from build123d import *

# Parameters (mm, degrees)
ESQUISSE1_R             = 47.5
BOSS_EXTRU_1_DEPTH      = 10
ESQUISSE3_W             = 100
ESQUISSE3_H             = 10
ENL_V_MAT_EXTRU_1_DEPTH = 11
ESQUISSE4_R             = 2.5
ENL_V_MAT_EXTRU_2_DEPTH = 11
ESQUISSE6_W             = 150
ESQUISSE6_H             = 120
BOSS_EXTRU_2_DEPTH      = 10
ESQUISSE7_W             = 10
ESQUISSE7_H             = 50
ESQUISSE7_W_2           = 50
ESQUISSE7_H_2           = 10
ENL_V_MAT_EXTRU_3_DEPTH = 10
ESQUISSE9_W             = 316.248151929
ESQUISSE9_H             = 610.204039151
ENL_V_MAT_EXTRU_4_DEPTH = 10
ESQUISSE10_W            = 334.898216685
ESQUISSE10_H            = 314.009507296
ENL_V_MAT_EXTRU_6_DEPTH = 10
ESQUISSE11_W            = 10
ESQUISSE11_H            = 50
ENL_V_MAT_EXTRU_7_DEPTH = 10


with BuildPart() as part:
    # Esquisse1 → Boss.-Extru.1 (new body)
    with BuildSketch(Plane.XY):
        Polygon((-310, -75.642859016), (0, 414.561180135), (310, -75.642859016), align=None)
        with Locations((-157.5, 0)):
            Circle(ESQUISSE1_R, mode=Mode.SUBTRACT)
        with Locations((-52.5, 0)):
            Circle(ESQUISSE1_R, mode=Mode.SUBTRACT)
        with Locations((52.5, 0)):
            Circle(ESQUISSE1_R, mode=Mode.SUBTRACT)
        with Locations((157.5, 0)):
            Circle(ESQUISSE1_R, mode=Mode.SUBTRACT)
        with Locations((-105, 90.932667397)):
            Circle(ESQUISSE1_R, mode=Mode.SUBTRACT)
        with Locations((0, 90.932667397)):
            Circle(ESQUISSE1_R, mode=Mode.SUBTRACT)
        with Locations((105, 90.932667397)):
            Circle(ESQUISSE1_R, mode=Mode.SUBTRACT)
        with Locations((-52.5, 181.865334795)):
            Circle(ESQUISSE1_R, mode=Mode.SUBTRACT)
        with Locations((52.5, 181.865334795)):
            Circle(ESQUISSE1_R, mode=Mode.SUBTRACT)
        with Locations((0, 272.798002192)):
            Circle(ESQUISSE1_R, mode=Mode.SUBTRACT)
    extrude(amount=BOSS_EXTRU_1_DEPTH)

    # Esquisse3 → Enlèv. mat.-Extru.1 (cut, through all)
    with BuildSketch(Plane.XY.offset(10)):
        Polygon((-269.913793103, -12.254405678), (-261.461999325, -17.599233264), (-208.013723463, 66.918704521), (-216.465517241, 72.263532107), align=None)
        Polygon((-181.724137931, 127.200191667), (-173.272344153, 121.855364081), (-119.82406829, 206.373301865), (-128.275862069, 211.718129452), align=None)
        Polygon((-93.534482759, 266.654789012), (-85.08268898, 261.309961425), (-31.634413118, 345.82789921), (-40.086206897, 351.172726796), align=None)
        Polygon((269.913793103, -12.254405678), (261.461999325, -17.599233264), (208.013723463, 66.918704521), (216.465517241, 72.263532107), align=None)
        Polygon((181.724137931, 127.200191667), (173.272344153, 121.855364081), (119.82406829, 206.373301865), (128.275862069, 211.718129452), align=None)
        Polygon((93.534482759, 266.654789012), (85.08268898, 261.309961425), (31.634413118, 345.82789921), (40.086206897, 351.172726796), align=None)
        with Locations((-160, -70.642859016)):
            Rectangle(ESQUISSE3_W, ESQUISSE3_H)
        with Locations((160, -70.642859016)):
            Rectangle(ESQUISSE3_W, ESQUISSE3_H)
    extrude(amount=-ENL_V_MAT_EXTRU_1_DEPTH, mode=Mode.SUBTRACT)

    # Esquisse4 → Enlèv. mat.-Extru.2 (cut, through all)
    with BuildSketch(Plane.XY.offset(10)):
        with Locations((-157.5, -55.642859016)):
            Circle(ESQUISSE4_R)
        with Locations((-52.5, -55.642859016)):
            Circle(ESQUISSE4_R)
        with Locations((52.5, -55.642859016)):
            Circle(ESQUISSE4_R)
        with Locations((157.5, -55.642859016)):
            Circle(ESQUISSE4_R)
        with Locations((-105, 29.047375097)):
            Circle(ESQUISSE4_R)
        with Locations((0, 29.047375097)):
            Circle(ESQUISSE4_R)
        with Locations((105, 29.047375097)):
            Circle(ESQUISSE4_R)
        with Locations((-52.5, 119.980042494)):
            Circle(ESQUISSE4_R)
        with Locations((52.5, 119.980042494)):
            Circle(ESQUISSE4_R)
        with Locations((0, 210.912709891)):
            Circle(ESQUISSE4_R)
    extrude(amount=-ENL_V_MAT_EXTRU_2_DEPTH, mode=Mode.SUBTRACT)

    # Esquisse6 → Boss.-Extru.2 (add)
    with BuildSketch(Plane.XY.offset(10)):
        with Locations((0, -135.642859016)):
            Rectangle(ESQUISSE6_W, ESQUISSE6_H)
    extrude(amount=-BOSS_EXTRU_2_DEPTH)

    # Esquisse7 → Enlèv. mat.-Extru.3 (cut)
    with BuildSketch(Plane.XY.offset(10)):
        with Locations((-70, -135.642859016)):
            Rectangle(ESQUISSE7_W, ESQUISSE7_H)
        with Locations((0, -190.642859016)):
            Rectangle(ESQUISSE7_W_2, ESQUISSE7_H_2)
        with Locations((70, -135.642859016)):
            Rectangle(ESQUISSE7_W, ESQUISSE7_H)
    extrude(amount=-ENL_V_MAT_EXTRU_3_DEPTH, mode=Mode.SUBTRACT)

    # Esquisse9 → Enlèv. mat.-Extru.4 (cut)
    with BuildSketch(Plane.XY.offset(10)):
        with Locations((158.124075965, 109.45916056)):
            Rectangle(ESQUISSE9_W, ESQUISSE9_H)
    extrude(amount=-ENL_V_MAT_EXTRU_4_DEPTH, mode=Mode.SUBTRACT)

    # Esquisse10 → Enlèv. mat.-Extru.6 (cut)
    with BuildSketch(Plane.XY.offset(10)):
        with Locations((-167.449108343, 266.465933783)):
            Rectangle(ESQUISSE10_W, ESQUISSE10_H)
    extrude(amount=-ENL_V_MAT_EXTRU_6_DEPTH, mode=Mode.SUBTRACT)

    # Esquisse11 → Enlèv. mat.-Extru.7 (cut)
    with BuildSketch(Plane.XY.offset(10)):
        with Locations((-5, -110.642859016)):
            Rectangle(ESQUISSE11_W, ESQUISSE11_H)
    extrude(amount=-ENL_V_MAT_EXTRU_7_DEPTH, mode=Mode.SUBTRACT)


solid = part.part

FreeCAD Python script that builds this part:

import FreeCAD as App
import Part
import Sketcher

V = App.Vector

doc = App.newDocument("Part")
body = doc.addObject("PartDesign::Body", "Body")

# Sketch on XY plane
sketch1 = body.newObject("Sketcher::SketchObject", "Sketch")
sketch1.AttachmentSupport = (doc.getObject("XY_Plane"), [""])
sketch1.MapMode = "FlatFace"
sketch1.addGeometry([
    Part.LineSegment(V(0, 415, 0), V(-310, -76, 0)),  # 0
    Part.LineSegment(V(-310, -76, 0), V(310, -76, 0)),  # 1
    Part.LineSegment(V(310, -76, 0), V(0, 415, 0)),  # 2
    Part.Circle(V(158, 0, 0), V(0, 0, 1), 48),  # 3
    Part.Circle(V(52, 0, 0), V(0, 0, 1), 48),  # 4
    Part.Circle(V(105, 91, 0), V(0, 0, 1), 48),  # 5
    Part.Circle(V(-52, 0, 0), V(0, 0, 1), 48),  # 6
    Part.Circle(V(-158, 0, 0), V(0, 0, 1), 48),  # 7
    Part.Circle(V(0, 91, 0), V(0, 0, 1), 48),  # 8
    Part.Circle(V(-105, 91, 0), V(0, 0, 1), 48),  # 9
    Part.Circle(V(52, 182, 0), V(0, 0, 1), 48),  # 10
    Part.Circle(V(-52, 182, 0), V(0, 0, 1), 48),  # 11
    Part.Circle(V(0, 273, 0), V(0, 0, 1), 48),  # 12
], False)
sketch1.addConstraint([
    Sketcher.Constraint("Coincident", 0, 2, 1, 1),
    Sketcher.Constraint("Coincident", 1, 2, 2, 1),
    Sketcher.Constraint("Coincident", 2, 2, 0, 1),
    Sketcher.Constraint("Horizontal", 1),
    Sketcher.Constraint("Equal", 3, 4),
    Sketcher.Constraint("Equal", 4, 5),
    Sketcher.Constraint("Equal", 5, 6),
    Sketcher.Constraint("Equal", 6, 7),
    Sketcher.Constraint("Equal", 7, 8),
    Sketcher.Constraint("Equal", 8, 9),
    Sketcher.Constraint("Equal", 9, 10),
    Sketcher.Constraint("Equal", 10, 11),
    Sketcher.Constraint("Equal", 11, 12),
    Sketcher.Constraint("Symmetric", 4, 3, 6, 3, -1, 1),
    Sketcher.Constraint("Symmetric", 3, 3, 7, 3, -1, 1),
    Sketcher.Constraint("Symmetric", 5, 3, 9, 3, -2),
    Sketcher.Constraint("Symmetric", 10, 3, 11, 3, -2),
    Sketcher.Constraint("PointOnObject", 3, 3, -1),
    Sketcher.Constraint("PointOnObject", 4, 3, -1),
    Sketcher.Constraint("PointOnObject", 8, 3, -2),
    Sketcher.Constraint("PointOnObject", 12, 3, -2),
    Sketcher.Constraint("PointOnObject", 2, 2, -2),
    Sketcher.Constraint("Horizontal", 5, 3, 8, 3),
    Sketcher.Constraint("Vertical", 4, 3, 10, 3),
    Sketcher.Constraint("Equal", 0, 2),
    Sketcher.Constraint("Diameter", 3, 95.0),
    Sketcher.Constraint("DistanceX", 1, 1, 1, 2, 620.0),
    Sketcher.Constraint("Distance", 0, 580.0),
    Sketcher.Constraint("DistanceX", -1, 1, 5, 3, 105.0),
    Sketcher.Constraint("DistanceX", 4, 3, 3, 3, 105.0),
    Sketcher.Constraint("DistanceX", 6, 3, 4, 3, 105.0),
    Sketcher.Constraint("DistanceY", 0, 2, -1, 1, 75.642859),
    Sketcher.Constraint("DistanceY", -1, 1, 5, 3, 90.932667),
    Sketcher.Constraint("DistanceY", -1, 1, 10, 3, 181.865335),
    Sketcher.Constraint("DistanceY", -1, 1, 12, 3, 272.798002),
])
pad1 = body.newObject("PartDesign::Pad", "Pad")
pad1.Profile = sketch1
pad1.Length = 10

# Sketch on XY plane
sketch2 = body.newObject("Sketcher::SketchObject", "Sketch001")
sketch2.AttachmentSupport = (doc.getObject("XY_Plane"), [""])
sketch2.MapMode = "FlatFace"
sketch2.AttachmentOffset = App.Placement(V(0, 0, 10), App.Rotation())
sketch2.addGeometry([
    Part.LineSegment(V(-270, -12, 0), V(-261, -18, 0)),  # 0
    Part.LineSegment(V(-261, -18, 0), V(-208, 67, 0)),  # 1
    Part.LineSegment(V(-208, 67, 0), V(-216, 72, 0)),  # 2
    Part.LineSegment(V(-216, 72, 0), V(-270, -12, 0)),  # 3
    Part.LineSegment(V(-182, 127, 0), V(-173, 122, 0)),  # 4
    Part.LineSegment(V(-173, 122, 0), V(-120, 206, 0)),  # 5
    Part.LineSegment(V(-120, 206, 0), V(-128, 212, 0)),  # 6
    Part.LineSegment(V(-128, 212, 0), V(-182, 127, 0)),  # 7
    Part.LineSegment(V(-94, 267, 0), V(-85, 261, 0)),  # 8
    Part.LineSegment(V(-85, 261, 0), V(-32, 346, 0)),  # 9
    Part.LineSegment(V(-32, 346, 0), V(-40, 351, 0)),  # 10
    Part.LineSegment(V(-40, 351, 0), V(-94, 267, 0)),  # 11
    Part.LineSegment(V(261, -18, 0), V(270, -12, 0)),  # 12
    Part.LineSegment(V(270, -12, 0), V(216, 72, 0)),  # 13
    Part.LineSegment(V(216, 72, 0), V(208, 67, 0)),  # 14
    Part.LineSegment(V(208, 67, 0), V(261, -18, 0)),  # 15
    Part.LineSegment(V(173, 122, 0), V(182, 127, 0)),  # 16
    Part.LineSegment(V(182, 127, 0), V(128, 212, 0)),  # 17
    Part.LineSegment(V(128, 212, 0), V(120, 206, 0)),  # 18
    Part.LineSegment(V(120, 206, 0), V(173, 122, 0)),  # 19
    Part.LineSegment(V(85, 261, 0), V(94, 267, 0)),  # 20
    Part.LineSegment(V(94, 267, 0), V(40, 351, 0)),  # 21
    Part.LineSegment(V(40, 351, 0), V(32, 346, 0)),  # 22
    Part.LineSegment(V(32, 346, 0), V(85, 261, 0)),  # 23
    Part.LineSegment(V(-210, -66, 0), V(-210, -76, 0)),  # 24
    Part.LineSegment(V(-210, -76, 0), V(-110, -76, 0)),  # 25
    Part.LineSegment(V(-110, -76, 0), V(-110, -66, 0)),  # 26
    Part.LineSegment(V(-110, -66, 0), V(-210, -66, 0)),  # 27
    Part.LineSegment(V(110, -66, 0), V(110, -76, 0)),  # 28
    Part.LineSegment(V(110, -76, 0), V(210, -76, 0)),  # 29
    Part.LineSegment(V(210, -76, 0), V(210, -66, 0)),  # 30
    Part.LineSegment(V(210, -66, 0), V(110, -66, 0)),  # 31
], False)
sketch2.addConstraint([
    Sketcher.Constraint("Coincident", 0, 2, 1, 1),
    Sketcher.Constraint("Coincident", 1, 2, 2, 1),
    Sketcher.Constraint("Coincident", 2, 2, 3, 1),
    Sketcher.Constraint("Coincident", 3, 2, 0, 1),
    Sketcher.Constraint("Coincident", 4, 2, 5, 1),
    Sketcher.Constraint("Coincident", 5, 2, 6, 1),
    Sketcher.Constraint("Coincident", 6, 2, 7, 1),
    Sketcher.Constraint("Coincident", 7, 2, 4, 1),
    Sketcher.Constraint("Coincident", 8, 2, 9, 1),
    Sketcher.Constraint("Coincident", 9, 2, 10, 1),
    Sketcher.Constraint("Coincident", 10, 2, 11, 1),
    Sketcher.Constraint("Coincident", 11, 2, 8, 1),
    Sketcher.Constraint("Coincident", 12, 2, 13, 1),
    Sketcher.Constraint("Coincident", 13, 2, 14, 1),
    Sketcher.Constraint("Coincident", 14, 2, 15, 1),
    Sketcher.Constraint("Coincident", 15, 2, 12, 1),
    Sketcher.Constraint("Coincident", 16, 2, 17, 1),
    Sketcher.Constraint("Coincident", 17, 2, 18, 1),
    Sketcher.Constraint("Coincident", 18, 2, 19, 1),
    Sketcher.Constraint("Coincident", 19, 2, 16, 1),
    Sketcher.Constraint("Coincident", 20, 2, 21, 1),
    Sketcher.Constraint("Coincident", 21, 2, 22, 1),
    Sketcher.Constraint("Coincident", 22, 2, 23, 1),
    Sketcher.Constraint("Coincident", 23, 2, 20, 1),
    Sketcher.Constraint("Coincident", 24, 2, 25, 1),
    Sketcher.Constraint("Coincident", 25, 2, 26, 1),
    Sketcher.Constraint("Coincident", 26, 2, 27, 1),
    Sketcher.Constraint("Coincident", 27, 2, 24, 1),
    Sketcher.Constraint("Coincident", 28, 2, 29, 1),
    Sketcher.Constraint("Coincident", 29, 2, 30, 1),
    Sketcher.Constraint("Coincident", 30, 2, 31, 1),
    Sketcher.Constraint("Coincident", 31, 2, 28, 1),
    Sketcher.Constraint("Vertical", 24),
    Sketcher.Constraint("Horizontal", 25),
    Sketcher.Constraint("Vertical", 26),
    Sketcher.Constraint("Horizontal", 27),
    Sketcher.Constraint("Vertical", 28),
    Sketcher.Constraint("Horizontal", 29),
    Sketcher.Constraint("Vertical", 30),
    Sketcher.Constraint("Horizontal", 31),
    Sketcher.Constraint("Symmetric", 3, 2, 12, 2, -2),
    Sketcher.Constraint("Symmetric", 2, 2, 13, 2, -2),
    Sketcher.Constraint("Symmetric", 1, 2, 14, 2, -2),
    Sketcher.Constraint("Symmetric", 0, 2, 15, 2, -2),
    Sketcher.Constraint("Symmetric", 7, 2, 16, 2, -2),
    Sketcher.Constraint("Symmetric", 6, 2, 17, 2, -2),
    Sketcher.Constraint("Symmetric", 5, 2, 18, 2, -2),
    Sketcher.Constraint("Symmetric", 4, 2, 19, 2, -2),
    Sketcher.Constraint("Symmetric", 11, 2, 20, 2, -2),
    Sketcher.Constraint("Symmetric", 10, 2, 21, 2, -2),
    Sketcher.Constraint("Symmetric", 9, 2, 22, 2, -2),
    Sketcher.Constraint("Symmetric", 8, 2, 23, 2, -2),
    Sketcher.Constraint("Symmetric", 25, 2, 28, 2, -2),
    Sketcher.Constraint("Symmetric", 27, 2, 30, 2, -2),
    Sketcher.Constraint("Perpendicular", 0, 1),
    Sketcher.Constraint("Perpendicular", 1, 2),
    Sketcher.Constraint("Perpendicular", 2, 3),
    Sketcher.Constraint("Perpendicular", 3, 4),
    Sketcher.Constraint("Perpendicular", 4, 5),
    Sketcher.Constraint("Perpendicular", 5, 6),
    Sketcher.Constraint("Perpendicular", 6, 7),
    Sketcher.Constraint("Perpendicular", 7, 8),
    Sketcher.Constraint("Perpendicular", 8, 9),
    Sketcher.Constraint("Perpendicular", 9, 10),
    Sketcher.Constraint("Perpendicular", 10, 11),
    Sketcher.Constraint("Equal", 2, 4),
    Sketcher.Constraint("Equal", 3, 5),
    Sketcher.Constraint("Equal", 6, 8),
    Sketcher.Constraint("Equal", 7, 9),
    Sketcher.Constraint("DistanceX", 25, 1, 25, 2, 100.0),
    Sketcher.Constraint("DistanceY", 24, 2, 24, 1, 10.0),
    Sketcher.Constraint("Distance", 0, 10.0),
    Sketcher.Constraint("Distance", 1, 100.0),
    Sketcher.Constraint("DistanceX", 24, 2, -1, 1, 210.0),
    Sketcher.Constraint("DistanceX", 11, 2, 13, 2, 310.0),
    Sketcher.Constraint("DistanceX", 0, 2, -1, 1, 261.461999),
    Sketcher.Constraint("DistanceY", -1, 1, 5, 2, 206.373302),
    Sketcher.Constraint("DistanceY", -1, 1, 9, 2, 345.827899),
    Sketcher.Constraint("DistanceX", 5, 2, -1, 1, 119.824068),
    Sketcher.Constraint("DistanceY", -1, 1, 6, 2, 211.718129),
    Sketcher.Constraint("DistanceY", 24, 2, -1, 1, 75.642859),
    Sketcher.Constraint("DistanceY", 1, 2, 4, 2, 54.93666),
])
pocket1 = body.newObject("PartDesign::Pocket", "Pocket")
pocket1.Profile = sketch2
pocket1.Type = "ThroughAll"

# Sketch on XY plane
sketch3 = body.newObject("Sketcher::SketchObject", "Sketch002")
sketch3.AttachmentSupport = (doc.getObject("XY_Plane"), [""])
sketch3.MapMode = "FlatFace"
sketch3.AttachmentOffset = App.Placement(V(0, 0, 10), App.Rotation())
sketch3.addGeometry([
    Part.Circle(V(-157.5, -55.6, 0), V(0, 0, 1), 2.5),  # 0
    Part.Circle(V(-52.5, -55.6, 0), V(0, 0, 1), 2.5),  # 1
    Part.Circle(V(52.5, -55.6, 0), V(0, 0, 1), 2.5),  # 2
    Part.Circle(V(157.5, -55.6, 0), V(0, 0, 1), 2.5),  # 3
    Part.Circle(V(-105, 29, 0), V(0, 0, 1), 2.5),  # 4
    Part.Circle(V(0, 29, 0), V(0, 0, 1), 2.5),  # 5
    Part.Circle(V(105, 29, 0), V(0, 0, 1), 2.5),  # 6
    Part.Circle(V(-52.5, 120, 0), V(0, 0, 1), 2.5),  # 7
    Part.Circle(V(52.5, 120, 0), V(0, 0, 1), 2.5),  # 8
    Part.Circle(V(0, 210.9, 0), V(0, 0, 1), 2.5),  # 9
], False)
sketch3.addConstraint([
    Sketcher.Constraint("Equal", 0, 1),
    Sketcher.Constraint("Equal", 1, 2),
    Sketcher.Constraint("Equal", 2, 3),
    Sketcher.Constraint("Equal", 3, 4),
    Sketcher.Constraint("Equal", 4, 5),
    Sketcher.Constraint("Equal", 5, 6),
    Sketcher.Constraint("Equal", 6, 7),
    Sketcher.Constraint("Equal", 7, 8),
    Sketcher.Constraint("Equal", 8, 9),
    Sketcher.Constraint("Symmetric", 1, 3, 2, 3, -2),
    Sketcher.Constraint("Symmetric", 0, 3, 3, 3, -2),
    Sketcher.Constraint("Symmetric", 4, 3, 6, 3, -2),
    Sketcher.Constraint("Symmetric", 7, 3, 8, 3, -2),
    Sketcher.Constraint("PointOnObject", 5, 3, -2),
    Sketcher.Constraint("PointOnObject", 9, 3, -2),
    Sketcher.Constraint("Horizontal", 0, 3, 1, 3),
    Sketcher.Constraint("Horizontal", 4, 3, 5, 3),
    Sketcher.Constraint("Vertical", 1, 3, 7, 3),
    Sketcher.Constraint("Diameter", 0, 5.0),
    Sketcher.Constraint("DistanceX", 4, 3, -1, 1, 105.0),
    Sketcher.Constraint("DistanceX", 0, 3, 1, 3, 105.0),
    Sketcher.Constraint("DistanceX", 1, 3, 2, 3, 105.0),
    Sketcher.Constraint("DistanceY", 1, 3, 7, 3, 175.622902),
    Sketcher.Constraint("DistanceY", 0, 3, -1, 1, 55.642859),
    Sketcher.Constraint("DistanceY", -1, 1, 9, 3, 210.91271),
    Sketcher.Constraint("DistanceY", -1, 1, 4, 3, 29.047375),
])
pocket2 = body.newObject("PartDesign::Pocket", "Pocket001")
pocket2.Profile = sketch3
pocket2.Type = "ThroughAll"

# Sketch on XY plane
sketch4 = body.newObject("Sketcher::SketchObject", "Sketch003")
sketch4.AttachmentSupport = (doc.getObject("XY_Plane"), [""])
sketch4.MapMode = "FlatFace"
sketch4.AttachmentOffset = App.Placement(V(0, 0, 10), App.Rotation())
sketch4.addGeometry([
    Part.LineSegment(V(-75, -76, 0), V(-75, -196, 0)),
    Part.LineSegment(V(-75, -196, 0), V(75, -196, 0)),
    Part.LineSegment(V(75, -196, 0), V(75, -76, 0)),
    Part.LineSegment(V(75, -76, 0), V(-75, -76, 0)),
], False)
sketch4.addConstraint([
    Sketcher.Constraint("Coincident", 0, 2, 1, 1),
    Sketcher.Constraint("Coincident", 1, 2, 2, 1),
    Sketcher.Constraint("Coincident", 2, 2, 3, 1),
    Sketcher.Constraint("Coincident", 3, 2, 0, 1),
    Sketcher.Constraint("Vertical", 0),
    Sketcher.Constraint("Horizontal", 1),
    Sketcher.Constraint("Vertical", 2),
    Sketcher.Constraint("Horizontal", 3),
    Sketcher.Constraint("DistanceX", 1, 1, 1, 2, 150.0),
    Sketcher.Constraint("DistanceY", 0, 2, 0, 1, 120.0),
    Sketcher.Constraint("DistanceX", 0, 2, -1, 1, 75.0),
    Sketcher.Constraint("DistanceY", 0, 2, -1, 1, 195.642859),
])
pad2 = body.newObject("PartDesign::Pad", "Pad001")
pad2.Profile = sketch4
pad2.Length = 10
pad2.Reversed = True

# Sketch on XY plane
sketch5 = body.newObject("Sketcher::SketchObject", "Sketch004")
sketch5.AttachmentSupport = (doc.getObject("XY_Plane"), [""])
sketch5.MapMode = "FlatFace"
sketch5.AttachmentOffset = App.Placement(V(0, 0, 10), App.Rotation())
sketch5.addGeometry([
    Part.LineSegment(V(-75, -111, 0), V(-75, -161, 0)),  # 0
    Part.LineSegment(V(-75, -161, 0), V(-65, -161, 0)),  # 1
    Part.LineSegment(V(-65, -161, 0), V(-65, -111, 0)),  # 2
    Part.LineSegment(V(-65, -111, 0), V(-75, -111, 0)),  # 3
    Part.LineSegment(V(-25, -186, 0), V(-25, -196, 0)),  # 4
    Part.LineSegment(V(-25, -196, 0), V(25, -196, 0)),  # 5
    Part.LineSegment(V(25, -196, 0), V(25, -186, 0)),  # 6
    Part.LineSegment(V(25, -186, 0), V(-25, -186, 0)),  # 7
    Part.LineSegment(V(65, -111, 0), V(65, -161, 0)),  # 8
    Part.LineSegment(V(65, -161, 0), V(75, -161, 0)),  # 9
    Part.LineSegment(V(75, -161, 0), V(75, -111, 0)),  # 10
    Part.LineSegment(V(75, -111, 0), V(65, -111, 0)),  # 11
], False)
sketch5.addConstraint([
    Sketcher.Constraint("Coincident", 0, 2, 1, 1),
    Sketcher.Constraint("Coincident", 1, 2, 2, 1),
    Sketcher.Constraint("Coincident", 2, 2, 3, 1),
    Sketcher.Constraint("Coincident", 3, 2, 0, 1),
    Sketcher.Constraint("Coincident", 4, 2, 5, 1),
    Sketcher.Constraint("Coincident", 5, 2, 6, 1),
    Sketcher.Constraint("Coincident", 6, 2, 7, 1),
    Sketcher.Constraint("Coincident", 7, 2, 4, 1),
    Sketcher.Constraint("Coincident", 8, 2, 9, 1),
    Sketcher.Constraint("Coincident", 9, 2, 10, 1),
    Sketcher.Constraint("Coincident", 10, 2, 11, 1),
    Sketcher.Constraint("Coincident", 11, 2, 8, 1),
    Sketcher.Constraint("Vertical", 0),
    Sketcher.Constraint("Horizontal", 1),
    Sketcher.Constraint("Vertical", 2),
    Sketcher.Constraint("Horizontal", 3),
    Sketcher.Constraint("Vertical", 4),
    Sketcher.Constraint("Horizontal", 5),
    Sketcher.Constraint("Vertical", 6),
    Sketcher.Constraint("Horizontal", 7),
    Sketcher.Constraint("Vertical", 8),
    Sketcher.Constraint("Horizontal", 9),
    Sketcher.Constraint("Vertical", 10),
    Sketcher.Constraint("Horizontal", 11),
    Sketcher.Constraint("Symmetric", 1, 2, 8, 2, -2),
    Sketcher.Constraint("Symmetric", 3, 2, 10, 2, -2),
    Sketcher.Constraint("Equal", 7, 0),
    Sketcher.Constraint("Equal", 11, 4),
    Sketcher.Constraint("DistanceX", 1, 1, 1, 2, 10.0),
    Sketcher.Constraint("DistanceX", 5, 1, 5, 2, 50.0),
    Sketcher.Constraint("DistanceX", 0, 2, -1, 1, 75.0),
    Sketcher.Constraint("DistanceX", 4, 2, -1, 1, 25.0),
    Sketcher.Constraint("DistanceY", 4, 2, 1, 2, 35.0),
    Sketcher.Constraint("DistanceY", 0, 2, -1, 1, 160.642859),
])
pocket3 = body.newObject("PartDesign::Pocket", "Pocket002")
pocket3.Profile = sketch5
pocket3.Length = 10

# Sketch on XY plane
sketch6 = body.newObject("Sketcher::SketchObject", "Sketch005")
sketch6.AttachmentSupport = (doc.getObject("XY_Plane"), [""])
sketch6.MapMode = "FlatFace"
sketch6.AttachmentOffset = App.Placement(V(0, 0, 10), App.Rotation())
sketch6.addGeometry([
    Part.LineSegment(V(0, 415, 0), V(0, -196, 0)),
    Part.LineSegment(V(0, -196, 0), V(316, -196, 0)),
    Part.LineSegment(V(316, -196, 0), V(316, 415, 0)),
    Part.LineSegment(V(316, 415, 0), V(0, 415, 0)),
], False)
sketch6.addConstraint([
    Sketcher.Constraint("Coincident", 0, 2, 1, 1),
    Sketcher.Constraint("Coincident", 1, 2, 2, 1),
    Sketcher.Constraint("Coincident", 2, 2, 3, 1),
    Sketcher.Constraint("Coincident", 3, 2, 0, 1),
    Sketcher.Constraint("Vertical", 0),
    Sketcher.Constraint("Horizontal", 1),
    Sketcher.Constraint("Vertical", 2),
    Sketcher.Constraint("Horizontal", 3),
    Sketcher.Constraint("PointOnObject", 0, 2, -2),
    Sketcher.Constraint("DistanceX", 1, 1, 1, 2, 316.248152),
    Sketcher.Constraint("DistanceY", 0, 2, 0, 1, 610.204039),
    Sketcher.Constraint("DistanceY", 0, 2, -1, 1, 195.642859),
])
pocket4 = body.newObject("PartDesign::Pocket", "Pocket003")
pocket4.Profile = sketch6
pocket4.Length = 10

# Sketch on XY plane
sketch7 = body.newObject("Sketcher::SketchObject", "Sketch006")
sketch7.AttachmentSupport = (doc.getObject("XY_Plane"), [""])
sketch7.MapMode = "FlatFace"
sketch7.AttachmentOffset = App.Placement(V(0, 0, 10), App.Rotation())
sketch7.addGeometry([
    Part.LineSegment(V(-335, 423, 0), V(-335, 109, 0)),
    Part.LineSegment(V(-335, 109, 0), V(0, 109, 0)),
    Part.LineSegment(V(0, 109, 0), V(0, 423, 0)),
    Part.LineSegment(V(0, 423, 0), V(-335, 423, 0)),
], False)
sketch7.addConstraint([
    Sketcher.Constraint("Coincident", 0, 2, 1, 1),
    Sketcher.Constraint("Coincident", 1, 2, 2, 1),
    Sketcher.Constraint("Coincident", 2, 2, 3, 1),
    Sketcher.Constraint("Coincident", 3, 2, 0, 1),
    Sketcher.Constraint("Vertical", 0),
    Sketcher.Constraint("Horizontal", 1),
    Sketcher.Constraint("Vertical", 2),
    Sketcher.Constraint("Horizontal", 3),
    Sketcher.Constraint("PointOnObject", 1, 2, -2),
    Sketcher.Constraint("DistanceX", 1, 1, 1, 2, 334.898217),
    Sketcher.Constraint("DistanceY", 0, 2, 0, 1, 314.009507),
    Sketcher.Constraint("DistanceY", -1, 1, 0, 2, 109.46118),
])
pocket5 = body.newObject("PartDesign::Pocket", "Pocket004")
pocket5.Profile = sketch7
pocket5.Length = 10

# Sketch on XY plane
sketch8 = body.newObject("Sketcher::SketchObject", "Sketch007")
sketch8.AttachmentSupport = (doc.getObject("XY_Plane"), [""])
sketch8.MapMode = "FlatFace"
sketch8.AttachmentOffset = App.Placement(V(0, 0, 10), App.Rotation())
sketch8.addGeometry([
    Part.LineSegment(V(-10, -86, 0), V(-10, -136, 0)),
    Part.LineSegment(V(-10, -136, 0), V(0, -136, 0)),
    Part.LineSegment(V(0, -136, 0), V(0, -86, 0)),
    Part.LineSegment(V(0, -86, 0), V(-10, -86, 0)),
], False)
sketch8.addConstraint([
    Sketcher.Constraint("Coincident", 0, 2, 1, 1),
    Sketcher.Constraint("Coincident", 1, 2, 2, 1),
    Sketcher.Constraint("Coincident", 2, 2, 3, 1),
    Sketcher.Constraint("Coincident", 3, 2, 0, 1),
    Sketcher.Constraint("Vertical", 0),
    Sketcher.Constraint("Horizontal", 1),
    Sketcher.Constraint("Vertical", 2),
    Sketcher.Constraint("Horizontal", 3),
    Sketcher.Constraint("PointOnObject", 1, 2, -2),
    Sketcher.Constraint("DistanceX", 1, 1, 1, 2, 10.0),
    Sketcher.Constraint("DistanceY", 0, 2, 0, 1, 50.0),
    Sketcher.Constraint("DistanceY", 0, 2, -1, 1, 135.642859),
])
pocket6 = body.newObject("PartDesign::Pocket", "Pocket005")
pocket6.Profile = sketch8
pocket6.Length = 10

doc.recompute()
